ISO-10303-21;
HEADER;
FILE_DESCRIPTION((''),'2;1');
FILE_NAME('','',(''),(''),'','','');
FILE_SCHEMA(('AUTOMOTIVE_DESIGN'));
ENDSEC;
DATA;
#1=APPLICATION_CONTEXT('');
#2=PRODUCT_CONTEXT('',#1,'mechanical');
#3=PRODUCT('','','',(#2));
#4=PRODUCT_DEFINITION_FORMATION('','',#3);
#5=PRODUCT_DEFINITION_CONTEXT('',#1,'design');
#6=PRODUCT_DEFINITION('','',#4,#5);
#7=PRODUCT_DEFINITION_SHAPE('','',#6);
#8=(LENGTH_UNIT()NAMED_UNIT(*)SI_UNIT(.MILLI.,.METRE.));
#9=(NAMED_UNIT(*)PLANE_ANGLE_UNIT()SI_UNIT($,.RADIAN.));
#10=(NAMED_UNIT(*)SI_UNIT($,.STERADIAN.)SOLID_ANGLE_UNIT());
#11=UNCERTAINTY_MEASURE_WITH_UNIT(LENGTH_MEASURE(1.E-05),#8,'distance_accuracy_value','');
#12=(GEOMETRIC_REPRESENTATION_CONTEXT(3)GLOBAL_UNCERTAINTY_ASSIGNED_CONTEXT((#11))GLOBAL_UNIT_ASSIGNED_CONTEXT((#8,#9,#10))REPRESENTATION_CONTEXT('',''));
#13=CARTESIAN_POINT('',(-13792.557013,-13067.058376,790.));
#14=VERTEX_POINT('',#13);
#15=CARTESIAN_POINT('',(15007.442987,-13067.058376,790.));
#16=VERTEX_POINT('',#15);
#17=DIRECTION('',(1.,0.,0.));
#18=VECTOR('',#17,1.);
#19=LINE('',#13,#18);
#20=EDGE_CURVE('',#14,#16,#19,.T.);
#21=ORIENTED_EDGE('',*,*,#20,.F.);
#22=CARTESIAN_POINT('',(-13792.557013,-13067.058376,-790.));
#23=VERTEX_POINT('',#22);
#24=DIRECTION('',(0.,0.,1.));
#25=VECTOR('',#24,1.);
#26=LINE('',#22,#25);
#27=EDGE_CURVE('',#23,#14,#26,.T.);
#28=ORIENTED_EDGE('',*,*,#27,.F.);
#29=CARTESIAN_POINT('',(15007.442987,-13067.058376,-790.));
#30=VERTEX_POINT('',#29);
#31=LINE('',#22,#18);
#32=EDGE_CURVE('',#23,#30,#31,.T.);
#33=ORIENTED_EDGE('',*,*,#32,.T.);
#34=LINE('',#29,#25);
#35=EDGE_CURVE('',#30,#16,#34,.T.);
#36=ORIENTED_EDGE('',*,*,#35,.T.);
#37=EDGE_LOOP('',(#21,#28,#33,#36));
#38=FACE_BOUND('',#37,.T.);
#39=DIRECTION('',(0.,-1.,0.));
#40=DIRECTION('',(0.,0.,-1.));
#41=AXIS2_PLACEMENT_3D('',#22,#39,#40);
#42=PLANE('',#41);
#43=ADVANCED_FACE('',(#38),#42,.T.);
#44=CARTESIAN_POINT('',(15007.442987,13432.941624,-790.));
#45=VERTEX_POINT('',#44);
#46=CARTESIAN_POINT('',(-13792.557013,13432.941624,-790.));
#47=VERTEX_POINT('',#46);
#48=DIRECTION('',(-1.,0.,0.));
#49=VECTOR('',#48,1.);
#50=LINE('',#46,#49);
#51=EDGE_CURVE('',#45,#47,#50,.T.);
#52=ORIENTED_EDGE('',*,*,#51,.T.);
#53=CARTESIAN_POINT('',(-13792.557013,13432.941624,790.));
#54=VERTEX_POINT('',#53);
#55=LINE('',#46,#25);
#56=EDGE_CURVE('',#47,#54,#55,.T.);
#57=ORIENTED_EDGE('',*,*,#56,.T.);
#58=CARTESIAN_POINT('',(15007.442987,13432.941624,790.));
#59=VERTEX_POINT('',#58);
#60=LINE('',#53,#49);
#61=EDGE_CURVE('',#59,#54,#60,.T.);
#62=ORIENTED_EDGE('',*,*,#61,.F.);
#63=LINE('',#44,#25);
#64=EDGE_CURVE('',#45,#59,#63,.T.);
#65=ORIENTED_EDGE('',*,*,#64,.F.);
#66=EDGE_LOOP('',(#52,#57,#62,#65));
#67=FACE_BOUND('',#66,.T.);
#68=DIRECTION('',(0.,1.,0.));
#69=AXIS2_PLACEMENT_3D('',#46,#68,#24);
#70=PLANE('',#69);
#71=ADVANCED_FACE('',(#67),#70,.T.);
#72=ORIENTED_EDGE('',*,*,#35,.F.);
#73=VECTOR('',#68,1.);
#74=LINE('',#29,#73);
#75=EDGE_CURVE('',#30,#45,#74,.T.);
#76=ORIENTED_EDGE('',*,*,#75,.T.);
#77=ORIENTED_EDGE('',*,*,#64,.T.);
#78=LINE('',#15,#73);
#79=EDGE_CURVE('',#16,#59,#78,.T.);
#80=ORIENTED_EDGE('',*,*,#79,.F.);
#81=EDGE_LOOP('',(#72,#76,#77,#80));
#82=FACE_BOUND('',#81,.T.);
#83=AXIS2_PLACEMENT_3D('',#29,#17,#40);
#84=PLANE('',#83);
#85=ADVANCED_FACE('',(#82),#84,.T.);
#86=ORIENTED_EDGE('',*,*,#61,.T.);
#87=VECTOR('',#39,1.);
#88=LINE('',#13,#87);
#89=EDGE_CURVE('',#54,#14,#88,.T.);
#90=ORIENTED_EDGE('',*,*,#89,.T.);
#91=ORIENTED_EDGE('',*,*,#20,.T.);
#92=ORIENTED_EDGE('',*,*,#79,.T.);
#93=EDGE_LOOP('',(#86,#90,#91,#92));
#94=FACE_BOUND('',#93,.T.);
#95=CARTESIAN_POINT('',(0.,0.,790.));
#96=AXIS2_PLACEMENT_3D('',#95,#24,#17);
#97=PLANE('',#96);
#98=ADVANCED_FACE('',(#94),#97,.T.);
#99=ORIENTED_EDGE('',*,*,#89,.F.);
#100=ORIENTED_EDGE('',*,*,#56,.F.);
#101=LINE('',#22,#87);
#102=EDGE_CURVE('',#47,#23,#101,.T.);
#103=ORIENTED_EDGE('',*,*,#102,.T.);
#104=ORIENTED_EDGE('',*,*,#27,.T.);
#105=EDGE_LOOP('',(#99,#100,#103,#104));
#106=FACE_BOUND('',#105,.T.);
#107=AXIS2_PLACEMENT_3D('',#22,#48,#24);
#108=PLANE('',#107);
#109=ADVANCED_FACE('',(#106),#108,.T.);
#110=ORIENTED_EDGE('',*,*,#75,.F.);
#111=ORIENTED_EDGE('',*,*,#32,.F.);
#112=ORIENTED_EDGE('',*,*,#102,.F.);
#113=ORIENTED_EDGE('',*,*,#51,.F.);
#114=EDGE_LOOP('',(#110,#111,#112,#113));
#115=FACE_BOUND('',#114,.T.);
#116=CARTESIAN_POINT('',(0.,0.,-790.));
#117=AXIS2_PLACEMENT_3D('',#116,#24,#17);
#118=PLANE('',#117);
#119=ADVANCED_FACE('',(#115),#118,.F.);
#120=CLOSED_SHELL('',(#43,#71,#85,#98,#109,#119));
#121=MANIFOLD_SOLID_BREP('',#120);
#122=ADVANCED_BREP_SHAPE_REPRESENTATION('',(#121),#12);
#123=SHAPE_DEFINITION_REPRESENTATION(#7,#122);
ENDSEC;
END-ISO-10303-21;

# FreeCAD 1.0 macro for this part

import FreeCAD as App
import Part
import Sketcher

V = App.Vector
Q = App.Units.Quantity


def add_polygon(sketch, points):
    """Adds a closed chain of lines whose ends are joined by coincident constraints."""
    first, n = sketch.GeometryCount, len(points)
    for a, b in zip(points, points[1:] + points[:1]):
        sketch.addGeometry(Part.LineSegment(App.Vector(*a, 0), App.Vector(*b, 0)), False)
    for i in range(n):
        sketch.addConstraint(Sketcher.Constraint("Coincident", first + i, 2, first + (i + 1) % n, 1))

doc = App.newDocument("Part")
body = doc.addObject("PartDesign::Body", "Body")

sketch1 = body.newObject("Sketcher::SketchObject", "Sketch")
sketch1.AttachmentSupport = (doc.getObject("XY_Plane"), [""])
sketch1.MapMode = "FlatFace"
add_polygon(sketch1, [(-13792.557013, 13432.941624), (-13792.557013, -13067.058376), (15007.442987, -13067.058376), (15007.442987, 13432.941624)])
sketch1.addConstraint(Sketcher.Constraint("Vertical", 0))
sketch1.addConstraint(Sketcher.Constraint("Horizontal", 1))
sketch1.addConstraint(Sketcher.Constraint("Vertical", 2))
sketch1.addConstraint(Sketcher.Constraint("Horizontal", 3))
sketch1.addConstraint(Sketcher.Constraint("DistanceX", 1, 1, 1, 2, Q("28800 mm")))
sketch1.addConstraint(Sketcher.Constraint("DistanceY", 0, 2, 0, 1, Q("26500 mm")))
sketch1.addConstraint(Sketcher.Constraint("DistanceX", 0, 2, -1, 1, Q("13792.557013 mm")))
sketch1.addConstraint(Sketcher.Constraint("DistanceY", 0, 2, -1, 1, Q("13067.058376 mm")))
pad1 = body.newObject("PartDesign::Pad", "Pad")
pad1.Profile = sketch1
pad1.Type = "TwoLengths"
pad1.Length = 790
pad1.Length2 = 790

doc.recompute()
